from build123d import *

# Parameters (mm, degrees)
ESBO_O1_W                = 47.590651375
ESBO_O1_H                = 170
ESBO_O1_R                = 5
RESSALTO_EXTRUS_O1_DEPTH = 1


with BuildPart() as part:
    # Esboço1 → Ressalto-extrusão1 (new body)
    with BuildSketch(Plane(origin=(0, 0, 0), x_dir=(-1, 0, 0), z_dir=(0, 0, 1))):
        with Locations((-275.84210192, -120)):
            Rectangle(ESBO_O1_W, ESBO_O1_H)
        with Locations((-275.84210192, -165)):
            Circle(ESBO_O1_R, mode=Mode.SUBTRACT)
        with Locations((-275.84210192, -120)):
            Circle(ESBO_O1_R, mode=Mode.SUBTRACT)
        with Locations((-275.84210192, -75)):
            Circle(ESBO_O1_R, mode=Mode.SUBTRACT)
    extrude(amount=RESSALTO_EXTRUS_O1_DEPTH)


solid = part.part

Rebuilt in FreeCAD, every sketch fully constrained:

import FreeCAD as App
import Part
import Sketcher


def add_polygon(sketch, points):
    """Adds a closed chain of lines whose ends are joined by coincident constraints."""
    first, n = sketch.GeometryCount, len(points)
    for a, b in zip(points, points[1:] + points[:1]):
        sketch.addGeometry(Part.LineSegment(App.Vector(*a, 0), App.Vector(*b, 0)), False)
    for i in range(n):
        sketch.addConstraint(Sketcher.Constraint("Coincident", first + i, 2, first + (i + 1) % n, 1))

doc = App.newDocument("Part")
body = doc.addObject("PartDesign::Body", "Body")

# Sketch on XY plane
sketch1 = doc.addObject("Sketcher::SketchObject", "Sketch")
body.addObject(sketch1)
sketch1.AttachmentSupport = (doc.XY_Plane, [""])
sketch1.MapMode = "FlatFace"
add_polygon(sketch1, [(300, 35), (300, 205), (252, 205), (252, 35)])  # lines 0-3
sketch1.addGeometry(Part.Circle(App.Vector(276, 165, 0), App.Vector(0, 0, 1), 5), False)  # 4
sketch1.addGeometry(Part.Circle(App.Vector(276, 120, 0), App.Vector(0, 0, 1), 5), False)  # 5
sketch1.addGeometry(Part.Circle(App.Vector(276, 75, 0), App.Vector(0, 0, 1), 5), False)  # 6
sketch1.addConstraint([
    Sketcher.Constraint("Vertical", 0),
    Sketcher.Constraint("Horizontal", 1),
    Sketcher.Constraint("Vertical", 2),
    Sketcher.Constraint("Horizontal", 3),
    Sketcher.Constraint("Equal", 4, 5),
    Sketcher.Constraint("Equal", 5, 6),
    Sketcher.Constraint("Vertical", 4, 3, 5, 3),
    Sketcher.Constraint("Vertical", 5, 3, 6, 3),
    Sketcher.Constraint("Diameter", 4, 10.0),
    Sketcher.Constraint("DistanceY", 0, 1, 0, 2, 170.0),
    Sketcher.Constraint("DistanceY", -1, 1, 4, 3, 165.0),
    Sketcher.Constraint("DistanceY", -1, 1, 5, 3, 120.0),
    Sketcher.Constraint("DistanceY", -1, 1, 6, 3, 75.0),
    Sketcher.Constraint("DistanceY", -1, 1, 0, 2, 205.0),
    Sketcher.Constraint("DistanceX", 1, 2, 1, 1, 47.590651),
    Sketcher.Constraint("DistanceX", -1, 1, 4, 3, 275.842102),
    Sketcher.Constraint("DistanceX", -1, 1, 0, 2, 299.637428),
])
pad1 = doc.addObject("PartDesign::Pad", "Pad")
body.addObject(pad1)
pad1.Profile = sketch1
pad1.Length = 1

doc.recompute()
